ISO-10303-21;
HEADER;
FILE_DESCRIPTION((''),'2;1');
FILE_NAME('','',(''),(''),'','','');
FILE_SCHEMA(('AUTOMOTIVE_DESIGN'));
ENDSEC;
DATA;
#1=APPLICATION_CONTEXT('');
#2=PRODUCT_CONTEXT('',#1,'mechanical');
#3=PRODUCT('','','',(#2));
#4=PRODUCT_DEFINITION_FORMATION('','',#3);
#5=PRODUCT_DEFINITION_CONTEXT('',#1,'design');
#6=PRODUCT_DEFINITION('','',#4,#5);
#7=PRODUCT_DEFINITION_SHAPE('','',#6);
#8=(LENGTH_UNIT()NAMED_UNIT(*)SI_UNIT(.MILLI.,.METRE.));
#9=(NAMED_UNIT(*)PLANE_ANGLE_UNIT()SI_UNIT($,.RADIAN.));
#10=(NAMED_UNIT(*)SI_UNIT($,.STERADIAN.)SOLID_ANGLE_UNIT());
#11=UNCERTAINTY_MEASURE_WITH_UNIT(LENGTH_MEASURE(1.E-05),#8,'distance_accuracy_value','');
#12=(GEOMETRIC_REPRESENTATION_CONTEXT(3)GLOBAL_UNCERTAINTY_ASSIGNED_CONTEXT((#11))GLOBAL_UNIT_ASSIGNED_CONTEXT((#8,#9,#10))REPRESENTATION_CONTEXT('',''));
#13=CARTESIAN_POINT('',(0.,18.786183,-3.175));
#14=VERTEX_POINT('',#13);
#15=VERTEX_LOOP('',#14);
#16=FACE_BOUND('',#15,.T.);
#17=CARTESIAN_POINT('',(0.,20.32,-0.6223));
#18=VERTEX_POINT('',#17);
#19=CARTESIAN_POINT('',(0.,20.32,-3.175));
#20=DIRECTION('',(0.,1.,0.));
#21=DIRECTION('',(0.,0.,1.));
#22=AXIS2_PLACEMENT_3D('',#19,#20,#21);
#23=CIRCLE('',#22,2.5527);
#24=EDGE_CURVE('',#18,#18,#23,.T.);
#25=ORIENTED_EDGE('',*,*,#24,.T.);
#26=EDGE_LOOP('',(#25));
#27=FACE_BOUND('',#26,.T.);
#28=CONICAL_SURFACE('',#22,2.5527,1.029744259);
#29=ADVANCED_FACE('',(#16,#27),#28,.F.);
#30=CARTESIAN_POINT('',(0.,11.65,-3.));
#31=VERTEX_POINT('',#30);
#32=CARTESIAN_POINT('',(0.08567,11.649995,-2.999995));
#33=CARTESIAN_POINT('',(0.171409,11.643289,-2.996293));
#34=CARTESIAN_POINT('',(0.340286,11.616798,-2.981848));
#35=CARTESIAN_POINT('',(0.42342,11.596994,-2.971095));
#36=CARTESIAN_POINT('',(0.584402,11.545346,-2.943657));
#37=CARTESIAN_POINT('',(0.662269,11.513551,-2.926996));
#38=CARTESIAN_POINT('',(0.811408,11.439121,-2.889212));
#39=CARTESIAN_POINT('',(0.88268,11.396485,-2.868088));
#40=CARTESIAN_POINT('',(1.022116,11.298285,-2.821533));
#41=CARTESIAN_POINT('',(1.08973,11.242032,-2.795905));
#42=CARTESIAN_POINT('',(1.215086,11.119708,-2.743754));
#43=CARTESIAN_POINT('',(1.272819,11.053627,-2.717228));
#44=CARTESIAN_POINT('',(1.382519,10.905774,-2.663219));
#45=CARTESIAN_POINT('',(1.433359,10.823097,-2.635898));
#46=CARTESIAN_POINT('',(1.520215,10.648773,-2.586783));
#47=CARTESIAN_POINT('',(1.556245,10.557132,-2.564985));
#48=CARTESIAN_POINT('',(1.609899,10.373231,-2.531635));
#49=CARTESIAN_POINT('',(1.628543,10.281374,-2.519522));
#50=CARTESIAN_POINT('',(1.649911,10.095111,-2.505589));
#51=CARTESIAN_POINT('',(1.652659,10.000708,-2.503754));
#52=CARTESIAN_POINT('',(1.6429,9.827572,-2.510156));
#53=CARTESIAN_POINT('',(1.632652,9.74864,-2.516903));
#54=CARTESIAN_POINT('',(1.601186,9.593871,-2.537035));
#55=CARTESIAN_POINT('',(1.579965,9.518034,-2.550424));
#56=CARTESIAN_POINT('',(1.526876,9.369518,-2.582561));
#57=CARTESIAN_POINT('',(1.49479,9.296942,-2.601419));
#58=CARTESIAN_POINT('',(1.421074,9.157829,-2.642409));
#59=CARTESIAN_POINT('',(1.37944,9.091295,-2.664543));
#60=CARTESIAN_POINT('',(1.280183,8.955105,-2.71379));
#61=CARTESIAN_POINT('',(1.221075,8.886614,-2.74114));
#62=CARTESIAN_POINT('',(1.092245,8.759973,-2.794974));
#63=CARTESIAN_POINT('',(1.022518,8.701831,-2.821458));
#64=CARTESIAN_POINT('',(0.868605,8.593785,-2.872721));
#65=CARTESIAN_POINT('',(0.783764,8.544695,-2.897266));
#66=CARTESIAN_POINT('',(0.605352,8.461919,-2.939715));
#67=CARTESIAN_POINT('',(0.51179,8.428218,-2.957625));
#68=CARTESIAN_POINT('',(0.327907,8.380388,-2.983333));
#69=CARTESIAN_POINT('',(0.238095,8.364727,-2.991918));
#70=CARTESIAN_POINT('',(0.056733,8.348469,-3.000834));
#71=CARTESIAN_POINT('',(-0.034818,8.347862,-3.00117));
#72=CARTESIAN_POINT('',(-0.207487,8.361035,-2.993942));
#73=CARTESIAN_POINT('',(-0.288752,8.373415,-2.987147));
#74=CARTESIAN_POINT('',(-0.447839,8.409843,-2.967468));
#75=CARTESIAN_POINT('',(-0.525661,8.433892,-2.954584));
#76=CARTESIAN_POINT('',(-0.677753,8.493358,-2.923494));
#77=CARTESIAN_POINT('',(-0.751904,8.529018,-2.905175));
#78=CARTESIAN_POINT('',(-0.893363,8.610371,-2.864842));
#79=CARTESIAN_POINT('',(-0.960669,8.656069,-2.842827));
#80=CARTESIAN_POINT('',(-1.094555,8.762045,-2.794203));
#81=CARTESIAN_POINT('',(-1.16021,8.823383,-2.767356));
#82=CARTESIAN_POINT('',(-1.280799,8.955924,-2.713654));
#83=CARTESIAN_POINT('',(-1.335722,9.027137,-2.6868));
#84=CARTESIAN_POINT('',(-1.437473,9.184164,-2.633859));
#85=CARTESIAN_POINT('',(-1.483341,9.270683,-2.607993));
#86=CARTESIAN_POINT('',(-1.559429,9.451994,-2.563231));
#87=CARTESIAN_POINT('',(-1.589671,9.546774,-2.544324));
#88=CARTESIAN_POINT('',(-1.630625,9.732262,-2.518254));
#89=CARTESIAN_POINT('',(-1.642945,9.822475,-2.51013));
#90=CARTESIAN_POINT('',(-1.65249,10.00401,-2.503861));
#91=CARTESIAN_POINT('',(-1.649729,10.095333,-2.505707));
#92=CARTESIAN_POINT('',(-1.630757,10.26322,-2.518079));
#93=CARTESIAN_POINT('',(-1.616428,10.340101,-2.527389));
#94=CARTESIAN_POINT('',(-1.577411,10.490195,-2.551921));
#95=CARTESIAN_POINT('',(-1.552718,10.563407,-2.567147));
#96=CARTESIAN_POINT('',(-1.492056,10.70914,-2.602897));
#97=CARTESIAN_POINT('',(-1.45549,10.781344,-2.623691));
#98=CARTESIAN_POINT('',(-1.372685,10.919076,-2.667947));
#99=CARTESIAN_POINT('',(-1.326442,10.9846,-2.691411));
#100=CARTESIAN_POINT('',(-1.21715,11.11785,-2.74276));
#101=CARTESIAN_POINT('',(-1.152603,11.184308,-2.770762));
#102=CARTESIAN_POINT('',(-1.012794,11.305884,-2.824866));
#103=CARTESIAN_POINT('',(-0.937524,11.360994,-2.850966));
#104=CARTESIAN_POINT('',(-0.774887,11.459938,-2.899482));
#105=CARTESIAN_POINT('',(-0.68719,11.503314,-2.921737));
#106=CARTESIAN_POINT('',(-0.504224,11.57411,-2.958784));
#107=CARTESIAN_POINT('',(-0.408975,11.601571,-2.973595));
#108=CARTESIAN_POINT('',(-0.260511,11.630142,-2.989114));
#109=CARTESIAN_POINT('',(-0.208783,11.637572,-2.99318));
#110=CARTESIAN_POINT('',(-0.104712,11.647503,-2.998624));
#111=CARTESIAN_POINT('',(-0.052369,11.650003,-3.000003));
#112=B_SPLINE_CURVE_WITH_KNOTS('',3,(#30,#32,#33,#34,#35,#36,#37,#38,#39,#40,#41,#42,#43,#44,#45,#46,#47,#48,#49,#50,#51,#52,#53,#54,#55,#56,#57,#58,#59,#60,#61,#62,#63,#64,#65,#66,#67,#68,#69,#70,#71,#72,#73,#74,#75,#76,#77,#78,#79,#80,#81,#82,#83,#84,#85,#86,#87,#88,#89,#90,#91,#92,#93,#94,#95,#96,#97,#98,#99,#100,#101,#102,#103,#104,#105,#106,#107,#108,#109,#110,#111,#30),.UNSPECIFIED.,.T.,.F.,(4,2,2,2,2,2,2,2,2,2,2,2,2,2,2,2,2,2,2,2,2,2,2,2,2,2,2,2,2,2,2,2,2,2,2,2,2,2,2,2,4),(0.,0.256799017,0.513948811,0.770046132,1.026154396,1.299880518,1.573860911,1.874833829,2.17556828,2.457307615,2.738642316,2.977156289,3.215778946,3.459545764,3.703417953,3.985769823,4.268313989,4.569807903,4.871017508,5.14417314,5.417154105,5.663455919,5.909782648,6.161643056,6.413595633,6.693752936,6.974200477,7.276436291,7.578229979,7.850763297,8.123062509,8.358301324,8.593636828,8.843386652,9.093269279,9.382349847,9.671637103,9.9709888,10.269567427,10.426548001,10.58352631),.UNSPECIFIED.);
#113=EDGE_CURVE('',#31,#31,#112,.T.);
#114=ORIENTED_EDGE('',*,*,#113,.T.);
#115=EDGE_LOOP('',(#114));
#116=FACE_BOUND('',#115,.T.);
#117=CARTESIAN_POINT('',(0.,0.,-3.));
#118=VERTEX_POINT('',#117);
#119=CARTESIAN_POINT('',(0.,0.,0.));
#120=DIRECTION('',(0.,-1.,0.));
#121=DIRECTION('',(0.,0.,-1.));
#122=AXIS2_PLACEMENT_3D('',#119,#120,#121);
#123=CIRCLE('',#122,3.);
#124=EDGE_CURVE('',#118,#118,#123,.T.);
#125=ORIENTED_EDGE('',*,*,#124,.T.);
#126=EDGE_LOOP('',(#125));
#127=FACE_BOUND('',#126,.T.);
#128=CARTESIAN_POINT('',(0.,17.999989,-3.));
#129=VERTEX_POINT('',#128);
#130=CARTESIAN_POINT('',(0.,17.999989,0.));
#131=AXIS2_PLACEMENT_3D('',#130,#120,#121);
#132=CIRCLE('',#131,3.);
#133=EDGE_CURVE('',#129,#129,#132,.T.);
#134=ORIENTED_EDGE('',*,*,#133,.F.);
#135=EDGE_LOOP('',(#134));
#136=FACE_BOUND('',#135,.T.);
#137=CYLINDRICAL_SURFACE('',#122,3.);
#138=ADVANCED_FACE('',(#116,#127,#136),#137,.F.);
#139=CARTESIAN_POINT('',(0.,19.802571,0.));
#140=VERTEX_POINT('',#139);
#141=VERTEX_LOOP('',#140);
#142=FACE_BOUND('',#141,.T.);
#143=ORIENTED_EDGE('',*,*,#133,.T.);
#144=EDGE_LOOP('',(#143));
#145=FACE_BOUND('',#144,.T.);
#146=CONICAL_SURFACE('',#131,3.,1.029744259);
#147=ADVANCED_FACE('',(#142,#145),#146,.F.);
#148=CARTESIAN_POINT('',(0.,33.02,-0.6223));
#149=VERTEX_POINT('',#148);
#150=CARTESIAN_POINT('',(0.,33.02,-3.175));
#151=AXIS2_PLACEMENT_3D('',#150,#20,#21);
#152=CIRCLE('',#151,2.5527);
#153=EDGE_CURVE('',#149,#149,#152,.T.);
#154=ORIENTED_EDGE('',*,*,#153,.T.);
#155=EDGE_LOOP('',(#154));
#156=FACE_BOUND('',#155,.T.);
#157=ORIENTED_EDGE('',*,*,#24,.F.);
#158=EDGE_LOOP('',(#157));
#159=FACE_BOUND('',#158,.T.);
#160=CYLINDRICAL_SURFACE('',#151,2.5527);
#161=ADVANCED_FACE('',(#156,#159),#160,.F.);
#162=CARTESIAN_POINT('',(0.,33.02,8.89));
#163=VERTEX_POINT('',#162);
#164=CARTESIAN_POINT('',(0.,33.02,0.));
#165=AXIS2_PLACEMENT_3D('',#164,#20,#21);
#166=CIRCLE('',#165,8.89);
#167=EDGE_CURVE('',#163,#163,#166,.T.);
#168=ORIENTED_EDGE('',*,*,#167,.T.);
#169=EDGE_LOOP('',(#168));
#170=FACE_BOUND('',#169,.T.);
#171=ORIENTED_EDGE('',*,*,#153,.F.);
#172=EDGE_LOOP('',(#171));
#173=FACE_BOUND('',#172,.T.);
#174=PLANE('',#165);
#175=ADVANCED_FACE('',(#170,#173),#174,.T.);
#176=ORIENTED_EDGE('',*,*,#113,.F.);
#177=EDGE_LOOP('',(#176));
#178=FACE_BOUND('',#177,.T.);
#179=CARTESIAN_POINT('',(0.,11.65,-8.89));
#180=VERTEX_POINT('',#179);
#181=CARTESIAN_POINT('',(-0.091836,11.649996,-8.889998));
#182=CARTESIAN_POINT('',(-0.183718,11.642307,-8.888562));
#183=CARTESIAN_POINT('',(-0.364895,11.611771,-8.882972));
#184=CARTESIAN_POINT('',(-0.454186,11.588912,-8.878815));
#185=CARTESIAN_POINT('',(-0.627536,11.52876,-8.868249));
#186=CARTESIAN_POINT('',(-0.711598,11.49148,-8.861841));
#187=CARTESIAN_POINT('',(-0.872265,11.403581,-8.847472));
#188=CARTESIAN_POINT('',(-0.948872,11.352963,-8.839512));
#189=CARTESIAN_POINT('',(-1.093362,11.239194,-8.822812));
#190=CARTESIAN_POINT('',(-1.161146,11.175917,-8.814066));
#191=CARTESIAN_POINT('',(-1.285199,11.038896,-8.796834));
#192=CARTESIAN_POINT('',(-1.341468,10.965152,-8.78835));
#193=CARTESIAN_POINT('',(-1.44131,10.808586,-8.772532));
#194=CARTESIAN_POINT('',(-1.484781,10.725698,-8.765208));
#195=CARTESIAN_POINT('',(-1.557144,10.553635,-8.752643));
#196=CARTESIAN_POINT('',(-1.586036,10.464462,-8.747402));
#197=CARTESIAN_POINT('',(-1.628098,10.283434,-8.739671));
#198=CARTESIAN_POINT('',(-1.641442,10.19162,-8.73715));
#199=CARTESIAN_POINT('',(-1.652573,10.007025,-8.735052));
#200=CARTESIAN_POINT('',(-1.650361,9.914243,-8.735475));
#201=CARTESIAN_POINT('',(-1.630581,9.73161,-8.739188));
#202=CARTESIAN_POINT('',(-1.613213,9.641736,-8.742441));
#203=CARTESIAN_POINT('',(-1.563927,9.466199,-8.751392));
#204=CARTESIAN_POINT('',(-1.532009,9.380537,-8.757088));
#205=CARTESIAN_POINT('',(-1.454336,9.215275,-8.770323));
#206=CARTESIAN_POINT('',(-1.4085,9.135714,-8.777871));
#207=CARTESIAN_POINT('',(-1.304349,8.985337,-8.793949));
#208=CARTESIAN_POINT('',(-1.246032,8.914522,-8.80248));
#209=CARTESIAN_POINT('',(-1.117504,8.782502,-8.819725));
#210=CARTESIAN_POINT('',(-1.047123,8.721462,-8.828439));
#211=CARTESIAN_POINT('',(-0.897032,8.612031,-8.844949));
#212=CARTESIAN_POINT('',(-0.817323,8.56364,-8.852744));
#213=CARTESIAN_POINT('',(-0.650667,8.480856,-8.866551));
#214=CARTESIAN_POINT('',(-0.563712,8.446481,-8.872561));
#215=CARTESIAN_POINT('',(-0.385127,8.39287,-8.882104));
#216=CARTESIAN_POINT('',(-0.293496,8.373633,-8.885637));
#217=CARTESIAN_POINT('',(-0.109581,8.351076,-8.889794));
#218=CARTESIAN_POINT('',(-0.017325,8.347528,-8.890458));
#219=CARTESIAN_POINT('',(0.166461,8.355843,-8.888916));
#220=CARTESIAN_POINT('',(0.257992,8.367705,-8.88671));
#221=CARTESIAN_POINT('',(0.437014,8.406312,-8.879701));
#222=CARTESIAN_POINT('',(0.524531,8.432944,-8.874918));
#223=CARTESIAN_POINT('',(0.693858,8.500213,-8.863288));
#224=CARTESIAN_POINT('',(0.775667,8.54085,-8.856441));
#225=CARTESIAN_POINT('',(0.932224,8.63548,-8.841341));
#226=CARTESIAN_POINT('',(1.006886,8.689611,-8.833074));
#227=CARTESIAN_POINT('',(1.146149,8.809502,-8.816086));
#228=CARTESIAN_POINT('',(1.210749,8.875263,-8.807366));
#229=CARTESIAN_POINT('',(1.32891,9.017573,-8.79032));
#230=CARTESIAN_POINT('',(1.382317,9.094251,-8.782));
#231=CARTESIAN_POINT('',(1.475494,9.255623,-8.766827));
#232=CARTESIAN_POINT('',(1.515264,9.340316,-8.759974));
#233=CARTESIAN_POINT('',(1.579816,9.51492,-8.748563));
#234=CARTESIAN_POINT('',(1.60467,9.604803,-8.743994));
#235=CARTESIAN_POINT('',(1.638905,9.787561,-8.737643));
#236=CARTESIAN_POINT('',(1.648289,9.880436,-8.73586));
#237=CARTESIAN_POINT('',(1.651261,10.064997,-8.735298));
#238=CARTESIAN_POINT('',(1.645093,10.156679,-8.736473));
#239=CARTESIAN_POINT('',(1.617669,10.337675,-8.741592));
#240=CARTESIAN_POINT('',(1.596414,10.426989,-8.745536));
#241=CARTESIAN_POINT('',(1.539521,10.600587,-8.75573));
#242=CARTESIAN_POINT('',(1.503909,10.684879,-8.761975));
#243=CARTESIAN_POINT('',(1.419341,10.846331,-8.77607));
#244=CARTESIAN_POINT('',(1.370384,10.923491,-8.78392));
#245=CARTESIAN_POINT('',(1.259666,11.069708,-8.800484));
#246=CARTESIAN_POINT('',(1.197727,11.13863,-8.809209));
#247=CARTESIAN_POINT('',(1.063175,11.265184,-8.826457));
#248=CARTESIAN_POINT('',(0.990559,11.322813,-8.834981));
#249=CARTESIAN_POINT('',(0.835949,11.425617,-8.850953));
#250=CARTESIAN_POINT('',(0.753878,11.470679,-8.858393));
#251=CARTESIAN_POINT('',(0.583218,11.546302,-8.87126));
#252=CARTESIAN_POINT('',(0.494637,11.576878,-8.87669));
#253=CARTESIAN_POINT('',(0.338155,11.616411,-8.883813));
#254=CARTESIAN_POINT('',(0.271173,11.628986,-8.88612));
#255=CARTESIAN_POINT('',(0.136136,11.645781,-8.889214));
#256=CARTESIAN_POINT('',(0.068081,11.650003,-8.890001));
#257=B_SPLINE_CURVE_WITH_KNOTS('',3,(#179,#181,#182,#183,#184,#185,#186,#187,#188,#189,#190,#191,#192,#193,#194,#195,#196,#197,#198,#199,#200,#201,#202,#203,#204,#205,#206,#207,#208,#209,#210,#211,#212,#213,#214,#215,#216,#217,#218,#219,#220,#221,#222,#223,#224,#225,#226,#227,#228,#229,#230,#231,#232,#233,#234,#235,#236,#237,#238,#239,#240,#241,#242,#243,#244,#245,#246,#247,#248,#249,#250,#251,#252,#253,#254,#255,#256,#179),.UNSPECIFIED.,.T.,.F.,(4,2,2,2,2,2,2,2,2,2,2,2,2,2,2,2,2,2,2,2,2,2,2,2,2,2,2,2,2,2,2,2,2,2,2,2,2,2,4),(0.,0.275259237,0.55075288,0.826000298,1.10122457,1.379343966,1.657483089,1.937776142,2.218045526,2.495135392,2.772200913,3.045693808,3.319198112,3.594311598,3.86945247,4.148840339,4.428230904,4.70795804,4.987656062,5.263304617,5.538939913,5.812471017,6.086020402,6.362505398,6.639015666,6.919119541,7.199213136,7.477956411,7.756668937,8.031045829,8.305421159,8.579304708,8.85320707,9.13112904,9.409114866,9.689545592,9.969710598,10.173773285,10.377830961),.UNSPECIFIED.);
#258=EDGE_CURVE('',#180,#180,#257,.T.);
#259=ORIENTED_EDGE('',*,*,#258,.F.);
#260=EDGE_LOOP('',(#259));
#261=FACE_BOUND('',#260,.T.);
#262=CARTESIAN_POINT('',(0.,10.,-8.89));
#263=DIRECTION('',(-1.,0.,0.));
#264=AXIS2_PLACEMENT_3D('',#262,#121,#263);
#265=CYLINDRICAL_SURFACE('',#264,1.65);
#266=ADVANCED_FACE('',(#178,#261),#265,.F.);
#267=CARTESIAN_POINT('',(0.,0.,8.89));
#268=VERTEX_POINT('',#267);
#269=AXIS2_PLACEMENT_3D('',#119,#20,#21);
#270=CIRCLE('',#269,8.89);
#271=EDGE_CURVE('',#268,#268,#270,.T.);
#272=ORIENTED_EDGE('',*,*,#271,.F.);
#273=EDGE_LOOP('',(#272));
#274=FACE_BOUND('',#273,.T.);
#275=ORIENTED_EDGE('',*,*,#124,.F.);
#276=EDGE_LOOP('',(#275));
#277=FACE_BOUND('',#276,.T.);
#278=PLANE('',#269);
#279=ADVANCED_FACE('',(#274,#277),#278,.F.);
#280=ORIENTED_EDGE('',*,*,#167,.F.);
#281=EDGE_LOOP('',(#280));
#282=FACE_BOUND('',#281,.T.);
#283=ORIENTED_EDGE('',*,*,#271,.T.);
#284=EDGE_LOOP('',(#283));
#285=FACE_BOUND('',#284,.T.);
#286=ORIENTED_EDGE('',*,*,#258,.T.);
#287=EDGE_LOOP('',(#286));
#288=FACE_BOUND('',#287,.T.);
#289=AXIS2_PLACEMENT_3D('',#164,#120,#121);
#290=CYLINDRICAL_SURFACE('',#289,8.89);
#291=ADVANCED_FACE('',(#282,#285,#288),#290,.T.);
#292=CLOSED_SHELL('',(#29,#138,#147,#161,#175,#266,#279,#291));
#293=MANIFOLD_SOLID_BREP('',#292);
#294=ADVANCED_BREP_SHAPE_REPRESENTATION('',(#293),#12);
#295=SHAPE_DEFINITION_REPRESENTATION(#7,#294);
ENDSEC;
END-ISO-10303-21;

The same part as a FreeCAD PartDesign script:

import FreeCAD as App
import Part
import Sketcher
from FreeCAD import Vector
Q = App.Units.Quantity

doc = App.newDocument("Part")
params = doc.addObject("Spreadsheet::Sheet", "Params")
for row, (alias, value) in enumerate([
    ("sketch1_diameter", "0.7 in"),
    ("pad1_length", "1.3 in"),
    ("sketch2_diameter", "0.201 in"),
    ("hole_diameter", "0.201 in"),
    ("hole_depth", "0.5 in"),
    ("hole2_diameter", "6 mm"),
    ("hole2_depth", "17.999989 mm"),
    ("pocket1_length", "6.384506 mm"),
], start=1):
    params.set(f"A{row}", alias)
    params.set(f"B{row}", "=" + value)
    params.setAlias(f"B{row}", alias)

body = doc.addObject("PartDesign::Body", "Body")

# Sketch on XZ plane
sketch1 = doc.addObject("Sketcher::SketchObject", "Sketch")
body.addObject(sketch1)
sketch1.AttachmentSupport = (doc.XZ_Plane, [""])
sketch1.MapMode = "FlatFace"
sketch1.addGeometry(Part.Circle(Vector(0, 0, 0), Vector(0, 0, 1), 9), False)
sketch1.addConstraint([
    Sketcher.Constraint("Coincident", 0, 3, -1, 1),
    Sketcher.Constraint("Diameter", 0, Q("0.7 in")),
])
sketch1.setExpression("Constraints[1]", "Params.sketch1_diameter")
pad1 = doc.addObject("PartDesign::Pad", "Pad")
body.addObject(pad1)
pad1.Profile = sketch1
pad1.setExpression("Length", "Params.pad1_length")
pad1.Reversed = True

# Sketch on XZ plane
sketch2 = doc.addObject("Sketcher::SketchObject", "Sketch001")
body.addObject(sketch2)
sketch2.AttachmentSupport = (doc.XZ_Plane, [""])
sketch2.MapMode = "FlatFace"
sketch2.AttachmentOffset = App.Placement(Vector(0, 0, -1.3 * 25.4), App.Rotation())
sketch2.addGeometry(Part.Circle(Vector(0, -3.2, 0), Vector(0, 0, 1), 2.6), False)
sketch2.addConstraint([
    Sketcher.Constraint("PointOnObject", 0, 3, -2),
    Sketcher.Constraint("Diameter", 0, Q("0.201 in")),
    Sketcher.Constraint("DistanceY", 0, 3, -1, 1, Q("0.125 in")),
])
sketch2.setExpression("Constraints[1]", "Params.sketch2_diameter")
doc.recompute()
hole = doc.addObject("PartDesign::Hole", "Hole")
body.addObject(hole)
hole.Profile = sketch2
hole.ThreadType = "None"
hole.setExpression("Diameter", "Params.hole_diameter")
hole.DepthType = "Dimension"
hole.setExpression("Depth", "Params.hole_depth")
hole.DrillPoint = "Angled"
hole.DrillPointAngle = 118
hole.Reversed = True

# Sketch on XZ plane
sketch3 = doc.addObject("Sketcher::SketchObject", "Sketch002")
body.addObject(sketch3)
sketch3.AttachmentSupport = (doc.XZ_Plane, [""])
sketch3.MapMode = "FlatFace"
sketch3.addGeometry(Part.Circle(Vector(0, 0, 0), Vector(0, 0, 1), 3), False)
sketch3.addConstraint([
    Sketcher.Constraint("Coincident", 0, 3, -1, 1),
    Sketcher.Constraint("Diameter", 0, 6.0),
])
doc.recompute()
hole2 = doc.addObject("PartDesign::Hole", "Hole001")
body.addObject(hole2)
hole2.Profile = sketch3
hole2.ThreadType = "None"
hole2.setExpression("Diameter", "Params.hole2_diameter")
hole2.DepthType = "Dimension"
hole2.setExpression("Depth", "Params.hole2_depth")
hole2.DrillPoint = "Angled"
hole2.DrillPointAngle = 118

# Sketch on XY plane
sketch4 = doc.addObject("Sketcher::SketchObject", "Sketch003")
body.addObject(sketch4)
sketch4.AttachmentSupport = (doc.XY_Plane, [""])
sketch4.MapMode = "FlatFace"
sketch4.AttachmentOffset = App.Placement(Vector(0, 0, -0.35 * 25.4), App.Rotation())
sketch4.addGeometry(Part.Circle(Vector(0, 10, 0), Vector(0, 0, 1), 1.6), False)
sketch4.addConstraint([
    Sketcher.Constraint("PointOnObject", 0, 3, -2),
    Sketcher.Constraint("Diameter", 0, 3.3),
    Sketcher.Constraint("DistanceY", -1, 1, 0, 3, 10.0),
])
pocket1 = doc.addObject("PartDesign::Pocket", "Pocket")
body.addObject(pocket1)
pocket1.Profile = sketch4
pocket1.setExpression("Length", "Params.pocket1_length")
pocket1.Reversed = True

doc.recompute()
